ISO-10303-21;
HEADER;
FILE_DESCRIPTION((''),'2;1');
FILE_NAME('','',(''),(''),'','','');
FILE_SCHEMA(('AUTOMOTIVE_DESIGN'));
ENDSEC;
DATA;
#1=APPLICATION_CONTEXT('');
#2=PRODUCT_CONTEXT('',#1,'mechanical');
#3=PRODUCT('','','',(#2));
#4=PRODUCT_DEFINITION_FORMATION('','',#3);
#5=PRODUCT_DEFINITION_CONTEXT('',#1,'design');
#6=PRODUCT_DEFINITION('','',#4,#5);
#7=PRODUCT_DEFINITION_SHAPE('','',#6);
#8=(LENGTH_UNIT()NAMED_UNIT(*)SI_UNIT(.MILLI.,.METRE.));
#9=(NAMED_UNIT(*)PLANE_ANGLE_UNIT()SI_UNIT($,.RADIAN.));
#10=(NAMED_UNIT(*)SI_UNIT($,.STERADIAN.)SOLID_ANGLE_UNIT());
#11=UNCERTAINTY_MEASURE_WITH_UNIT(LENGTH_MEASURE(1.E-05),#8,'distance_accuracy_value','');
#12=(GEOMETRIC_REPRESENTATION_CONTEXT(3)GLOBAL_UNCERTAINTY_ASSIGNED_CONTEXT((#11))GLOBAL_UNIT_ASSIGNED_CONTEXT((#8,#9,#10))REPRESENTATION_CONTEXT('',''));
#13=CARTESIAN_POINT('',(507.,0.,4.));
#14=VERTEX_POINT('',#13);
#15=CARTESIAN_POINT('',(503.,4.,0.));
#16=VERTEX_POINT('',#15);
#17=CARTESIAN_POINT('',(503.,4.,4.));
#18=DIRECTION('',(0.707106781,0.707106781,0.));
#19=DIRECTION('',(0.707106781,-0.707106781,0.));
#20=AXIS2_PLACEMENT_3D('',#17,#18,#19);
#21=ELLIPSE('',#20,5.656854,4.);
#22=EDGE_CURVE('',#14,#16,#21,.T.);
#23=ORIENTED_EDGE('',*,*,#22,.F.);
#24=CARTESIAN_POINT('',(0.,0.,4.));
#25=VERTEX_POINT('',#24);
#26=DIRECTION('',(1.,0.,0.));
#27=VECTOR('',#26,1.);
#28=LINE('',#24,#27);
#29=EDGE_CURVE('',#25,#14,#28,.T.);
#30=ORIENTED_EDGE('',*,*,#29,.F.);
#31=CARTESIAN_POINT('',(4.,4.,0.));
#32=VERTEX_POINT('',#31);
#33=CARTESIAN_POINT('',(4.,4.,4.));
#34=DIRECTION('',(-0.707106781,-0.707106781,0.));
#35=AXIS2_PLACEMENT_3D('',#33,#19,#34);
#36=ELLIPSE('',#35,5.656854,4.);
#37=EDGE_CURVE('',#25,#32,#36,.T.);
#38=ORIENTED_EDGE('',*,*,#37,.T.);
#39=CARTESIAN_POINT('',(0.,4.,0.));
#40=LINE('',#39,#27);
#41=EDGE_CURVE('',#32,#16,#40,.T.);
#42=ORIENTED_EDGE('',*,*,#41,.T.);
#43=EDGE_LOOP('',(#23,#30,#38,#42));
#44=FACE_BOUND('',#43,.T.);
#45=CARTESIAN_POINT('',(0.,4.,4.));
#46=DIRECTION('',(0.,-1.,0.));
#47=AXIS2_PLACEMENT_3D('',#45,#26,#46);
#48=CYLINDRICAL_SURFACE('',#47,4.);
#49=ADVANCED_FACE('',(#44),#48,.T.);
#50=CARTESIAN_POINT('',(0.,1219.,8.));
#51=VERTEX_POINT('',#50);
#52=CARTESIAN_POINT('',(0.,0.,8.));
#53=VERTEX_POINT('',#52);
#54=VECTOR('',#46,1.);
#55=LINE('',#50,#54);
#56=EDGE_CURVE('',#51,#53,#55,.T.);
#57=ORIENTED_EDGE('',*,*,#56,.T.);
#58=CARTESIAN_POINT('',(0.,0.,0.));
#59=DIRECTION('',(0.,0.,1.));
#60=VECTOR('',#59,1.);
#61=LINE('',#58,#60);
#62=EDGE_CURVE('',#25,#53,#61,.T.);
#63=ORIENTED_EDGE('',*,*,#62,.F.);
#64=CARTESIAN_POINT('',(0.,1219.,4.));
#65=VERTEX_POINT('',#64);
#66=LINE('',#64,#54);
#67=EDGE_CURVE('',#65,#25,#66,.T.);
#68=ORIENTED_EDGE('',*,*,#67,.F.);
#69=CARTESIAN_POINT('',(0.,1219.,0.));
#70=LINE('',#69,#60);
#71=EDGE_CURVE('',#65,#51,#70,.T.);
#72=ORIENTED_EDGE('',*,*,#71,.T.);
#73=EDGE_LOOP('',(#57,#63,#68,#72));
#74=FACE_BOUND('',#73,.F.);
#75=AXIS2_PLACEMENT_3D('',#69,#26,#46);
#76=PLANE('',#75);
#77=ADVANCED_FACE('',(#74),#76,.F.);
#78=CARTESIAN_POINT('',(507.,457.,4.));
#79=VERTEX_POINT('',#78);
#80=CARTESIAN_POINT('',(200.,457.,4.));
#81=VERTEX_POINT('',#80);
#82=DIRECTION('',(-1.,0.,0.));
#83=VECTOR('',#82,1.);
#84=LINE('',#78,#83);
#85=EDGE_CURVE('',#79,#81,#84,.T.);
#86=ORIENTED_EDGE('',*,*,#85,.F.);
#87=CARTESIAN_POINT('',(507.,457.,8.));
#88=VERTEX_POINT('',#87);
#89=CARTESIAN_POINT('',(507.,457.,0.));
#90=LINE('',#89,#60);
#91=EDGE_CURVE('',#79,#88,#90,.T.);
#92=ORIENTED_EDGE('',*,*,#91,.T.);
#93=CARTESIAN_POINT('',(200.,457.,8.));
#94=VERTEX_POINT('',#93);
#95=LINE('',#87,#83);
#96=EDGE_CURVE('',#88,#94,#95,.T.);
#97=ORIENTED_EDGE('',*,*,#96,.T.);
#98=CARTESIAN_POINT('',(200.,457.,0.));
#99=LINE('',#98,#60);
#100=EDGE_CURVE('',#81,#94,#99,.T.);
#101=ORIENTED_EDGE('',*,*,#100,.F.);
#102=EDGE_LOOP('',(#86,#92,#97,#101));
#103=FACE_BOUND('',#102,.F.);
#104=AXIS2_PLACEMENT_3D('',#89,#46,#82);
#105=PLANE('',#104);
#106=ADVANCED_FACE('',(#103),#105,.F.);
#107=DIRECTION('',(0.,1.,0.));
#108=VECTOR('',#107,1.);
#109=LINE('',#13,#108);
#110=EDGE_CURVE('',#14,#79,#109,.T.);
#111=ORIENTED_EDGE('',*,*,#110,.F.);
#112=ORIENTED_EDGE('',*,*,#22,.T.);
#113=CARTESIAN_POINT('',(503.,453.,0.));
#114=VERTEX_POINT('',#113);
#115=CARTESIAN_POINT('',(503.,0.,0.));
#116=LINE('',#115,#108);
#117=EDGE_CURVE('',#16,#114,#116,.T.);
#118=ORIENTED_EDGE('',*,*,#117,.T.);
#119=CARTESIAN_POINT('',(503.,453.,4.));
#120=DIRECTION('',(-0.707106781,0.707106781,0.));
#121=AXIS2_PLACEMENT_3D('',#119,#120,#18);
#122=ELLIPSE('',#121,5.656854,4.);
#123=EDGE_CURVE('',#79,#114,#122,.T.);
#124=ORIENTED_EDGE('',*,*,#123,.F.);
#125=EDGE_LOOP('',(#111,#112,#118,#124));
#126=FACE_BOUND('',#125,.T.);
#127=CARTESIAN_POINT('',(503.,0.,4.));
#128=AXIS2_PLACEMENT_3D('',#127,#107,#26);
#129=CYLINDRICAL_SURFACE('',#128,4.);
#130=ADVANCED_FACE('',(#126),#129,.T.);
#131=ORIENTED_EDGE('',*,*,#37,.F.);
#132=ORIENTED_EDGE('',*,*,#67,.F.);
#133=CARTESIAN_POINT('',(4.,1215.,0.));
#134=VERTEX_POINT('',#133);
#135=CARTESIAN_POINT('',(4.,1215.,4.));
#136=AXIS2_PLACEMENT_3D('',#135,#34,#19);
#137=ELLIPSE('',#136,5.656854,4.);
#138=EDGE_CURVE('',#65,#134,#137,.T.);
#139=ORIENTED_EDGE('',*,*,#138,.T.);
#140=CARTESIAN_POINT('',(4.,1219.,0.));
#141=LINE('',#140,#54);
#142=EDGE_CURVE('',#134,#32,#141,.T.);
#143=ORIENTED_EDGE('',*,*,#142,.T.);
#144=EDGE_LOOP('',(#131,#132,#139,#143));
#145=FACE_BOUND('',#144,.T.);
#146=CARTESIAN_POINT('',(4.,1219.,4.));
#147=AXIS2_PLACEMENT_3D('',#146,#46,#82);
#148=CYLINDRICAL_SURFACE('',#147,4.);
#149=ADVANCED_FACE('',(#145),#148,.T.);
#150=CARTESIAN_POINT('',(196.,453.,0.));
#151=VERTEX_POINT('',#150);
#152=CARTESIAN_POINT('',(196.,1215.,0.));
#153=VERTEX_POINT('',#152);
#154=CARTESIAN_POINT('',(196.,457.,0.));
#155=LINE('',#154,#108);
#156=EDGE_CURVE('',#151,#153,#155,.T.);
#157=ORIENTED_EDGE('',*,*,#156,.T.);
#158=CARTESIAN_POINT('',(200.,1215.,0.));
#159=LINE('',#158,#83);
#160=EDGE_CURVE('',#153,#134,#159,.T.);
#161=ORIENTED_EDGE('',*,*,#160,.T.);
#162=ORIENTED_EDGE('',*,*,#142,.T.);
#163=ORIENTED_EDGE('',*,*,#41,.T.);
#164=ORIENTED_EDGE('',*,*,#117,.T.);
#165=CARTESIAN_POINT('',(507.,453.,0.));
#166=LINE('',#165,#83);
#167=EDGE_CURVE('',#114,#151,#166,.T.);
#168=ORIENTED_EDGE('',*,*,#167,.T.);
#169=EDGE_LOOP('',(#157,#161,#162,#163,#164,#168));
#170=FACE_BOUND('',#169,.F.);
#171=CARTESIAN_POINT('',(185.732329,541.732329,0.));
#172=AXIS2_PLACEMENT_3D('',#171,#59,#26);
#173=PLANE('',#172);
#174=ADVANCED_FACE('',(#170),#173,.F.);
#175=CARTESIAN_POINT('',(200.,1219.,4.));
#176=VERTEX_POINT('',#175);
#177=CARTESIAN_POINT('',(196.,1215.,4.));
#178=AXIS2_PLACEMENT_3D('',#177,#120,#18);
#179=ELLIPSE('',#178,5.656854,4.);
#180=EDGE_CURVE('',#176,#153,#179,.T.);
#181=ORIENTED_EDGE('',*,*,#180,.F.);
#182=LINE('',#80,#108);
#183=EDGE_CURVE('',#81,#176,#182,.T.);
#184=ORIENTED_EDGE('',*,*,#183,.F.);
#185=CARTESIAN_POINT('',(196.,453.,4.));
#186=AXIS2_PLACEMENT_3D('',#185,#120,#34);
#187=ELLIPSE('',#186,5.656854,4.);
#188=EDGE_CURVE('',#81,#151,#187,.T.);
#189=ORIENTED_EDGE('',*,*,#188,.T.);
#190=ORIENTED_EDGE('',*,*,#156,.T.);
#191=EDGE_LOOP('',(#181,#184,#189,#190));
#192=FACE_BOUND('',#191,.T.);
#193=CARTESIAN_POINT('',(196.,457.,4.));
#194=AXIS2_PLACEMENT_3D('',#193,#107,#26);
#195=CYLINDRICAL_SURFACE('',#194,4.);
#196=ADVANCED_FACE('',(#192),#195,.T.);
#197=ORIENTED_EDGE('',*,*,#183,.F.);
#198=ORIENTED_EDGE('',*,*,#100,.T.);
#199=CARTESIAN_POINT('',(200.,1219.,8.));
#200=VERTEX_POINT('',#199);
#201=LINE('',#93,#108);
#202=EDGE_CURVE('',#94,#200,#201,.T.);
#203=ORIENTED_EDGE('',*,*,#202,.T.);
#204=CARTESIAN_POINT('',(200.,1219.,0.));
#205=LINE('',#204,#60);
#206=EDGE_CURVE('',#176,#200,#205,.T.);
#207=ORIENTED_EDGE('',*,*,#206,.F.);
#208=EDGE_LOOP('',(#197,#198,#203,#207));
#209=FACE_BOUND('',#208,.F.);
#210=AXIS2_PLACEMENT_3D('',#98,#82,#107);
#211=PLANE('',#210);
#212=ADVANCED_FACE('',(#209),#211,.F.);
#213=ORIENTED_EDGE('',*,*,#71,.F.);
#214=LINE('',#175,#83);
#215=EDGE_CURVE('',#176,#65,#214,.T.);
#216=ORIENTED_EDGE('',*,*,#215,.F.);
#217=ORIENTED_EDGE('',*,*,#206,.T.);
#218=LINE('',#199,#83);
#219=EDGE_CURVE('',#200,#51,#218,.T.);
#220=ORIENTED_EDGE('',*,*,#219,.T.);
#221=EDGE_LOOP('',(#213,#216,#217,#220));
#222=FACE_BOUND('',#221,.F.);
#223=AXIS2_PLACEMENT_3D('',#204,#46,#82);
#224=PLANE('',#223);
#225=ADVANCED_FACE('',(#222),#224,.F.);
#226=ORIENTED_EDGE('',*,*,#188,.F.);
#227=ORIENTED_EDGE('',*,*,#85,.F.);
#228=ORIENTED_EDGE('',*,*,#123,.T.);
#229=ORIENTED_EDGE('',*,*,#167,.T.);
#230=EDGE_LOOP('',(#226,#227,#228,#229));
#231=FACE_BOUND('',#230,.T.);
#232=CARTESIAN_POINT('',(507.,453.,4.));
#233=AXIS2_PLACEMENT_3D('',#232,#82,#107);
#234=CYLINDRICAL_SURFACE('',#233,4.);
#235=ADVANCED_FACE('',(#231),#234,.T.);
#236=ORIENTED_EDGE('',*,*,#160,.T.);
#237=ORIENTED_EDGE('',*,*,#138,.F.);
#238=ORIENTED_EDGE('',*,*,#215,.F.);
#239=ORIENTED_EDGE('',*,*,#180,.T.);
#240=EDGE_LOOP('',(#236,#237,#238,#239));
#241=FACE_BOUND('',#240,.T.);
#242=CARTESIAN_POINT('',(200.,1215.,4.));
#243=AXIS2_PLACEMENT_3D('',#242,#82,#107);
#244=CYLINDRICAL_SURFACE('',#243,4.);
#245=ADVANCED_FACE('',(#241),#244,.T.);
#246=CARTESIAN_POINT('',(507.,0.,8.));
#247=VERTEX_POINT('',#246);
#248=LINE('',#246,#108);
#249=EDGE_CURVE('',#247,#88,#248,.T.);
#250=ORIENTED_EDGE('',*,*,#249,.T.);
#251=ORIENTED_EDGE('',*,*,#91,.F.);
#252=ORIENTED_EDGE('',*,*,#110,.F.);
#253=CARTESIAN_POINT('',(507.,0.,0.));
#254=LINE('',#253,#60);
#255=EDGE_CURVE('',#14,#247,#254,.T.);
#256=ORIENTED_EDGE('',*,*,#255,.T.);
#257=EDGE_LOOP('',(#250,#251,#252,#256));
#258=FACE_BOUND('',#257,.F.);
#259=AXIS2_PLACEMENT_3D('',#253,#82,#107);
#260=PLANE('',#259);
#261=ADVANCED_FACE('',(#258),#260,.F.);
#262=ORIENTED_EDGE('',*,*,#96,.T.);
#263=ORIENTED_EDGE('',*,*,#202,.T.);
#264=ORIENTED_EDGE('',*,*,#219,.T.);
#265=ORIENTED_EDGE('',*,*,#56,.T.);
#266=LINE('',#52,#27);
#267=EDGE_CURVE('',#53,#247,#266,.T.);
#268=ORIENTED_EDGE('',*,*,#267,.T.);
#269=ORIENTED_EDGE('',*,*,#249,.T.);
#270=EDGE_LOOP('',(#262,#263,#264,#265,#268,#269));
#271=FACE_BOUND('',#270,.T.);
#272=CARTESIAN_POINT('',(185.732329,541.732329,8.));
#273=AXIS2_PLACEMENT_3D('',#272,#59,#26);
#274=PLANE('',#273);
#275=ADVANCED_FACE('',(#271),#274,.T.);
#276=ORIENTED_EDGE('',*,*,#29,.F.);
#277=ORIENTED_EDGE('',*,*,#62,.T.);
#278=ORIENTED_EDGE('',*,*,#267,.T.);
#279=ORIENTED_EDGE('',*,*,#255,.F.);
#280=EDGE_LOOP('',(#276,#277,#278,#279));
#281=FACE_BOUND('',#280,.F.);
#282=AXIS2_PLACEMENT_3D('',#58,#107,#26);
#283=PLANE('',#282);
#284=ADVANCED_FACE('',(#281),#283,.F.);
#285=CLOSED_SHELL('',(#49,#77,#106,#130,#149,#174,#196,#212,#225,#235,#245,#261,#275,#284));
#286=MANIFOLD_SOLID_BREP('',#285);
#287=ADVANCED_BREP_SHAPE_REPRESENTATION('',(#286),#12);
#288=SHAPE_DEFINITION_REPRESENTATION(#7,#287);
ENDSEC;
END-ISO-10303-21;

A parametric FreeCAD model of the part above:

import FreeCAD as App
import Part
import Sketcher

V = App.Vector
Q = App.Units.Quantity


def edges_at(feature, points):
    """Names of the edges that pass closest to the given points."""
    edges = feature.Shape.Edges
    near = lambda p: min(range(len(edges)), key=lambda i: edges[i].distToShape(Part.Vertex(*p))[0])
    return sorted({f"Edge{near(p) + 1}" for p in points})

doc = App.newDocument("Part")
body = doc.addObject("PartDesign::Body", "Body")

# Sketch on XY plane
sketch1 = body.newObject("Sketcher::SketchObject", "Sketch")
sketch1.AttachmentSupport = (doc.getObject("XY_Plane"), [""])
sketch1.MapMode = "FlatFace"
sketch1.addGeometry(Part.LineSegment(V(0, 1219, 0), V(0, 0, 0)), False)
sketch1.addGeometry(Part.LineSegment(V(0, 0, 0), V(507, 0, 0)), False)
sketch1.addGeometry(Part.LineSegment(V(507, 0, 0), V(507, 457, 0)), False)
sketch1.addGeometry(Part.LineSegment(V(507, 457, 0), V(200, 457, 0)), False)
sketch1.addGeometry(Part.LineSegment(V(200, 457, 0), V(200, 1219, 0)), False)
sketch1.addGeometry(Part.LineSegment(V(200, 1219, 0), V(0, 1219, 0)), False)
sketch1.addConstraint(Sketcher.Constraint("Coincident", 0, 2, 1, 1))
sketch1.addConstraint(Sketcher.Constraint("Coincident", 1, 2, 2, 1))
sketch1.addConstraint(Sketcher.Constraint("Coincident", 2, 2, 3, 1))
sketch1.addConstraint(Sketcher.Constraint("Coincident", 3, 2, 4, 1))
sketch1.addConstraint(Sketcher.Constraint("Coincident", 4, 2, 5, 1))
sketch1.addConstraint(Sketcher.Constraint("Coincident", 5, 2, 0, 1))
sketch1.addConstraint(Sketcher.Constraint("Vertical", 0))
sketch1.addConstraint(Sketcher.Constraint("Horizontal", 1))
sketch1.addConstraint(Sketcher.Constraint("Vertical", 2))
sketch1.addConstraint(Sketcher.Constraint("Horizontal", 3))
sketch1.addConstraint(Sketcher.Constraint("Vertical", 4))
sketch1.addConstraint(Sketcher.Constraint("Horizontal", 5))
sketch1.addConstraint(Sketcher.Constraint("Coincident", 0, 2, -1, 1))
sketch1.addConstraint(Sketcher.Constraint("DistanceX", 1, 1, 1, 2, Q("507 mm")))
sketch1.addConstraint(Sketcher.Constraint("DistanceX", 3, 2, 3, 1, Q("307 mm")))
sketch1.addConstraint(Sketcher.Constraint("DistanceY", 0, 2, 0, 1, Q("1219 mm")))
sketch1.addConstraint(Sketcher.Constraint("DistanceY", 2, 1, 2, 2, Q("457 mm")))
pad1 = body.newObject("PartDesign::Pad", "Pad")
pad1.Profile = sketch1
pad1.Length = 8
doc.recompute()

fillet = body.newObject("PartDesign::Fillet", "Fillet")
fillet.Base = (pad1, edges_at(pad1, [
    (0, 609.5, 0),
    (253.5, 0, 0),
    (507, 228.5, 0),
    (353.5, 457, 0),
    (200, 838, 0),
    (100, 1219, 0),
]))
fillet.Radius = 4

doc.recompute()
